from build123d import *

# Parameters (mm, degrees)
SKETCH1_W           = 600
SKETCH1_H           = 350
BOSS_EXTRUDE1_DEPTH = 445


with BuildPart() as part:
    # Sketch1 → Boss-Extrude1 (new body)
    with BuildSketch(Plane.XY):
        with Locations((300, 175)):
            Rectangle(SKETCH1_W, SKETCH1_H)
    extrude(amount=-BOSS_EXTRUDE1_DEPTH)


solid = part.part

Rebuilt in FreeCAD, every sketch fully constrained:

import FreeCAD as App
import Part
import Sketcher
Q = App.Units.Quantity


def add_polygon(sketch, points):
    """Adds a closed chain of lines whose ends are joined by coincident constraints."""
    first, n = sketch.GeometryCount, len(points)
    for a, b in zip(points, points[1:] + points[:1]):
        sketch.addGeometry(Part.LineSegment(App.Vector(*a, 0), App.Vector(*b, 0)), False)
    for i in range(n):
        sketch.addConstraint(Sketcher.Constraint("Coincident", first + i, 2, first + (i + 1) % n, 1))

doc = App.newDocument("Part")
body = doc.addObject("PartDesign::Body", "Body")

# Sketch on XY plane
sketch1 = body.newObject("Sketcher::SketchObject", "Sketch")
sketch1.AttachmentSupport = (doc.getObject("XY_Plane"), [""])
sketch1.MapMode = "FlatFace"
add_polygon(sketch1, [(0, 350), (0, 0), (600, 0), (600, 350)])  # lines 0-3
sketch1.addConstraint(Sketcher.Constraint("Vertical", 0))
sketch1.addConstraint(Sketcher.Constraint("Horizontal", 1))
sketch1.addConstraint(Sketcher.Constraint("Vertical", 2))
sketch1.addConstraint(Sketcher.Constraint("Horizontal", 3))
sketch1.addConstraint(Sketcher.Constraint("Coincident", 0, 2, -1, 1))
sketch1.addConstraint(Sketcher.Constraint("DistanceX", 1, 1, 1, 2, Q("600 mm")))
sketch1.addConstraint(Sketcher.Constraint("DistanceY", 0, 2, 0, 1, Q("350 mm")))
pad1 = body.newObject("PartDesign::Pad", "Pad")
pad1.Profile = sketch1
pad1.Length = 445
pad1.Reversed = True

doc.recompute()
